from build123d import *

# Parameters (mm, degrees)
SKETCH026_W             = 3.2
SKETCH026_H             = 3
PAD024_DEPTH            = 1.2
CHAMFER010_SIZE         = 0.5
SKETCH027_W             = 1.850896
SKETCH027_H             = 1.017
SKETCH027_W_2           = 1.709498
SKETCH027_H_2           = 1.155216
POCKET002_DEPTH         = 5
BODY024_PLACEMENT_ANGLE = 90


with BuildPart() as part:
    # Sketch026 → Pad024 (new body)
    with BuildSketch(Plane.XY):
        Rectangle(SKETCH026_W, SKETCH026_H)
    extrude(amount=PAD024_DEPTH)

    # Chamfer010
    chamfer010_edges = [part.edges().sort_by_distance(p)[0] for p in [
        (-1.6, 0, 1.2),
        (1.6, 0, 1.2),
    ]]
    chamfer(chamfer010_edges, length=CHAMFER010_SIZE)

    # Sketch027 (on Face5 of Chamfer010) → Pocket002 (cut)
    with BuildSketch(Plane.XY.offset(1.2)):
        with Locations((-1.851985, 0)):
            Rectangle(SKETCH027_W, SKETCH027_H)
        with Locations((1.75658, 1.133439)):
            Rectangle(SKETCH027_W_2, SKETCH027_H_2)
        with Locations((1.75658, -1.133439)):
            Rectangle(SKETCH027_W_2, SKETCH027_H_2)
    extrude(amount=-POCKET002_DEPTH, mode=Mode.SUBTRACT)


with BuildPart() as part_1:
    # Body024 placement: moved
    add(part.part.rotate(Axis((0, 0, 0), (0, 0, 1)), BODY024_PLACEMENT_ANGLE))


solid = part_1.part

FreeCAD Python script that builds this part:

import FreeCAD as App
import Part
import Sketcher

V = App.Vector
Q = App.Units.Quantity


def edges_at(feature, points):
    """Names of the edges that pass closest to the given points."""
    edges = feature.Shape.Edges
    near = lambda p: min(range(len(edges)), key=lambda i: edges[i].distToShape(Part.Vertex(*p))[0])
    return sorted({f"Edge{near(p) + 1}" for p in points})

doc = App.newDocument("Part")
body = doc.addObject("PartDesign::Body", "Body")

# Sketch on XY plane
sketch1 = doc.addObject("Sketcher::SketchObject", "Sketch")
body.addObject(sketch1)
sketch1.AttachmentSupport = (doc.XY_Plane, [""])
sketch1.MapMode = "FlatFace"
sketch1.addGeometry([
    Part.LineSegment(V(-1.6, 1.5, 0), V(-1.6, -1.5, 0)),
    Part.LineSegment(V(-1.6, -1.5, 0), V(1.6, -1.5, 0)),
    Part.LineSegment(V(1.6, -1.5, 0), V(1.6, 1.5, 0)),
    Part.LineSegment(V(1.6, 1.5, 0), V(-1.6, 1.5, 0)),
], False)
sketch1.addConstraint([
    Sketcher.Constraint("Coincident", 0, 2, 1, 1),
    Sketcher.Constraint("Coincident", 1, 2, 2, 1),
    Sketcher.Constraint("Coincident", 2, 2, 3, 1),
    Sketcher.Constraint("Coincident", 3, 2, 0, 1),
    Sketcher.Constraint("Vertical", 0),
    Sketcher.Constraint("Horizontal", 1),
    Sketcher.Constraint("Vertical", 2),
    Sketcher.Constraint("Horizontal", 3),
    Sketcher.Constraint("Symmetric", 0, 2, 2, 2, -1, 1),
    Sketcher.Constraint("DistanceY", 0, 2, 0, 1, Q("3 mm")),
    Sketcher.Constraint("DistanceX", 1, 1, 1, 2, Q("3.2 mm")),
])
pad1 = doc.addObject("PartDesign::Pad", "Pad")
body.addObject(pad1)
pad1.Profile = sketch1
pad1.Length = 1.2
doc.recompute()

chamfer = doc.addObject("PartDesign::Chamfer", "Chamfer")
body.addObject(chamfer)
chamfer.Base = (pad1, edges_at(pad1, [(-1.6, 0, 1.2), (1.6, 0, 1.2)]))
chamfer.Size = 0.5

# Sketch on XY plane
sketch2 = doc.addObject("Sketcher::SketchObject", "Sketch001")
body.addObject(sketch2)
sketch2.AttachmentSupport = (doc.XY_Plane, [""])
sketch2.MapMode = "FlatFace"
sketch2.AttachmentOffset = App.Placement(V(0, 0, 1.2), App.Rotation())
sketch2.addGeometry([
    Part.LineSegment(V(-2.8, 0.5, 0), V(-2.8, -0.5, 0)),  # 0
    Part.LineSegment(V(-2.8, -0.5, 0), V(-0.9, -0.5, 0)),  # 1
    Part.LineSegment(V(-0.9, -0.5, 0), V(-0.9, 0.5, 0)),  # 2
    Part.LineSegment(V(-0.9, 0.5, 0), V(-2.8, 0.5, 0)),  # 3
    Part.LineSegment(V(0.9, 1.7, 0), V(0.9, 0.6, 0)),  # 4
    Part.LineSegment(V(0.9, 0.6, 0), V(2.6, 0.6, 0)),  # 5
    Part.LineSegment(V(2.6, 0.6, 0), V(2.6, 1.7, 0)),  # 6
    Part.LineSegment(V(2.6, 1.7, 0), V(0.9, 1.7, 0)),  # 7
    Part.LineSegment(V(0.9, -0.6, 0), V(0.9, -1.7, 0)),  # 8
    Part.LineSegment(V(0.9, -1.7, 0), V(2.6, -1.7, 0)),  # 9
    Part.LineSegment(V(2.6, -1.7, 0), V(2.6, -0.6, 0)),  # 10
    Part.LineSegment(V(2.6, -0.6, 0), V(0.9, -0.6, 0)),  # 11
], False)
sketch2.addConstraint([
    Sketcher.Constraint("Coincident", 0, 2, 1, 1),
    Sketcher.Constraint("Coincident", 1, 2, 2, 1),
    Sketcher.Constraint("Coincident", 2, 2, 3, 1),
    Sketcher.Constraint("Coincident", 3, 2, 0, 1),
    Sketcher.Constraint("Coincident", 4, 2, 5, 1),
    Sketcher.Constraint("Coincident", 5, 2, 6, 1),
    Sketcher.Constraint("Coincident", 6, 2, 7, 1),
    Sketcher.Constraint("Coincident", 7, 2, 4, 1),
    Sketcher.Constraint("Coincident", 8, 2, 9, 1),
    Sketcher.Constraint("Coincident", 9, 2, 10, 1),
    Sketcher.Constraint("Coincident", 10, 2, 11, 1),
    Sketcher.Constraint("Coincident", 11, 2, 8, 1),
    Sketcher.Constraint("Vertical", 0),
    Sketcher.Constraint("Horizontal", 1),
    Sketcher.Constraint("Vertical", 2),
    Sketcher.Constraint("Horizontal", 3),
    Sketcher.Constraint("Vertical", 4),
    Sketcher.Constraint("Horizontal", 5),
    Sketcher.Constraint("Vertical", 6),
    Sketcher.Constraint("Horizontal", 7),
    Sketcher.Constraint("Vertical", 8),
    Sketcher.Constraint("Horizontal", 9),
    Sketcher.Constraint("Vertical", 10),
    Sketcher.Constraint("Horizontal", 11),
    Sketcher.Constraint("Symmetric", 7, 2, 8, 2, -1),
    Sketcher.Constraint("Symmetric", 5, 2, 10, 2, -1),
    Sketcher.Constraint("DistanceY", 0, 2, 0, 1, Q("1.017 mm")),
    Sketcher.Constraint("DistanceY", 0, 2, -1, 1, Q("0.5085 mm")),
    Sketcher.Constraint("DistanceX", 1, 1, 1, 2, Q("1.850896 mm")),
    Sketcher.Constraint("DistanceX", 5, 1, 5, 2, Q("1.709498 mm")),
    Sketcher.Constraint("DistanceY", 4, 2, 4, 1, Q("1.155216 mm")),
    Sketcher.Constraint("DistanceX", -1, 1, 4, 2, Q("0.901831 mm")),
    Sketcher.Constraint("DistanceY", -1, 1, 4, 2, Q("0.555831 mm")),
    Sketcher.Constraint("DistanceX", 2, 2, 4, 2, Q("1.828368 mm")),
])
pocket1 = doc.addObject("PartDesign::Pocket", "Pocket")
body.addObject(pocket1)
pocket1.Profile = sketch2
pocket1.Length = 5
body2 = doc.addObject("PartDesign::Body", "Body001")
doc.recompute()

body.Placement = App.Placement(V(0, 0, 0), App.Rotation(V(0, 0, 1), 90))
boolean = doc.addObject("PartDesign::Boolean", "Boolean")
body2.addObject(boolean)
boolean.Type = "Fuse"
boolean.addObjects([body])

doc.recompute()
